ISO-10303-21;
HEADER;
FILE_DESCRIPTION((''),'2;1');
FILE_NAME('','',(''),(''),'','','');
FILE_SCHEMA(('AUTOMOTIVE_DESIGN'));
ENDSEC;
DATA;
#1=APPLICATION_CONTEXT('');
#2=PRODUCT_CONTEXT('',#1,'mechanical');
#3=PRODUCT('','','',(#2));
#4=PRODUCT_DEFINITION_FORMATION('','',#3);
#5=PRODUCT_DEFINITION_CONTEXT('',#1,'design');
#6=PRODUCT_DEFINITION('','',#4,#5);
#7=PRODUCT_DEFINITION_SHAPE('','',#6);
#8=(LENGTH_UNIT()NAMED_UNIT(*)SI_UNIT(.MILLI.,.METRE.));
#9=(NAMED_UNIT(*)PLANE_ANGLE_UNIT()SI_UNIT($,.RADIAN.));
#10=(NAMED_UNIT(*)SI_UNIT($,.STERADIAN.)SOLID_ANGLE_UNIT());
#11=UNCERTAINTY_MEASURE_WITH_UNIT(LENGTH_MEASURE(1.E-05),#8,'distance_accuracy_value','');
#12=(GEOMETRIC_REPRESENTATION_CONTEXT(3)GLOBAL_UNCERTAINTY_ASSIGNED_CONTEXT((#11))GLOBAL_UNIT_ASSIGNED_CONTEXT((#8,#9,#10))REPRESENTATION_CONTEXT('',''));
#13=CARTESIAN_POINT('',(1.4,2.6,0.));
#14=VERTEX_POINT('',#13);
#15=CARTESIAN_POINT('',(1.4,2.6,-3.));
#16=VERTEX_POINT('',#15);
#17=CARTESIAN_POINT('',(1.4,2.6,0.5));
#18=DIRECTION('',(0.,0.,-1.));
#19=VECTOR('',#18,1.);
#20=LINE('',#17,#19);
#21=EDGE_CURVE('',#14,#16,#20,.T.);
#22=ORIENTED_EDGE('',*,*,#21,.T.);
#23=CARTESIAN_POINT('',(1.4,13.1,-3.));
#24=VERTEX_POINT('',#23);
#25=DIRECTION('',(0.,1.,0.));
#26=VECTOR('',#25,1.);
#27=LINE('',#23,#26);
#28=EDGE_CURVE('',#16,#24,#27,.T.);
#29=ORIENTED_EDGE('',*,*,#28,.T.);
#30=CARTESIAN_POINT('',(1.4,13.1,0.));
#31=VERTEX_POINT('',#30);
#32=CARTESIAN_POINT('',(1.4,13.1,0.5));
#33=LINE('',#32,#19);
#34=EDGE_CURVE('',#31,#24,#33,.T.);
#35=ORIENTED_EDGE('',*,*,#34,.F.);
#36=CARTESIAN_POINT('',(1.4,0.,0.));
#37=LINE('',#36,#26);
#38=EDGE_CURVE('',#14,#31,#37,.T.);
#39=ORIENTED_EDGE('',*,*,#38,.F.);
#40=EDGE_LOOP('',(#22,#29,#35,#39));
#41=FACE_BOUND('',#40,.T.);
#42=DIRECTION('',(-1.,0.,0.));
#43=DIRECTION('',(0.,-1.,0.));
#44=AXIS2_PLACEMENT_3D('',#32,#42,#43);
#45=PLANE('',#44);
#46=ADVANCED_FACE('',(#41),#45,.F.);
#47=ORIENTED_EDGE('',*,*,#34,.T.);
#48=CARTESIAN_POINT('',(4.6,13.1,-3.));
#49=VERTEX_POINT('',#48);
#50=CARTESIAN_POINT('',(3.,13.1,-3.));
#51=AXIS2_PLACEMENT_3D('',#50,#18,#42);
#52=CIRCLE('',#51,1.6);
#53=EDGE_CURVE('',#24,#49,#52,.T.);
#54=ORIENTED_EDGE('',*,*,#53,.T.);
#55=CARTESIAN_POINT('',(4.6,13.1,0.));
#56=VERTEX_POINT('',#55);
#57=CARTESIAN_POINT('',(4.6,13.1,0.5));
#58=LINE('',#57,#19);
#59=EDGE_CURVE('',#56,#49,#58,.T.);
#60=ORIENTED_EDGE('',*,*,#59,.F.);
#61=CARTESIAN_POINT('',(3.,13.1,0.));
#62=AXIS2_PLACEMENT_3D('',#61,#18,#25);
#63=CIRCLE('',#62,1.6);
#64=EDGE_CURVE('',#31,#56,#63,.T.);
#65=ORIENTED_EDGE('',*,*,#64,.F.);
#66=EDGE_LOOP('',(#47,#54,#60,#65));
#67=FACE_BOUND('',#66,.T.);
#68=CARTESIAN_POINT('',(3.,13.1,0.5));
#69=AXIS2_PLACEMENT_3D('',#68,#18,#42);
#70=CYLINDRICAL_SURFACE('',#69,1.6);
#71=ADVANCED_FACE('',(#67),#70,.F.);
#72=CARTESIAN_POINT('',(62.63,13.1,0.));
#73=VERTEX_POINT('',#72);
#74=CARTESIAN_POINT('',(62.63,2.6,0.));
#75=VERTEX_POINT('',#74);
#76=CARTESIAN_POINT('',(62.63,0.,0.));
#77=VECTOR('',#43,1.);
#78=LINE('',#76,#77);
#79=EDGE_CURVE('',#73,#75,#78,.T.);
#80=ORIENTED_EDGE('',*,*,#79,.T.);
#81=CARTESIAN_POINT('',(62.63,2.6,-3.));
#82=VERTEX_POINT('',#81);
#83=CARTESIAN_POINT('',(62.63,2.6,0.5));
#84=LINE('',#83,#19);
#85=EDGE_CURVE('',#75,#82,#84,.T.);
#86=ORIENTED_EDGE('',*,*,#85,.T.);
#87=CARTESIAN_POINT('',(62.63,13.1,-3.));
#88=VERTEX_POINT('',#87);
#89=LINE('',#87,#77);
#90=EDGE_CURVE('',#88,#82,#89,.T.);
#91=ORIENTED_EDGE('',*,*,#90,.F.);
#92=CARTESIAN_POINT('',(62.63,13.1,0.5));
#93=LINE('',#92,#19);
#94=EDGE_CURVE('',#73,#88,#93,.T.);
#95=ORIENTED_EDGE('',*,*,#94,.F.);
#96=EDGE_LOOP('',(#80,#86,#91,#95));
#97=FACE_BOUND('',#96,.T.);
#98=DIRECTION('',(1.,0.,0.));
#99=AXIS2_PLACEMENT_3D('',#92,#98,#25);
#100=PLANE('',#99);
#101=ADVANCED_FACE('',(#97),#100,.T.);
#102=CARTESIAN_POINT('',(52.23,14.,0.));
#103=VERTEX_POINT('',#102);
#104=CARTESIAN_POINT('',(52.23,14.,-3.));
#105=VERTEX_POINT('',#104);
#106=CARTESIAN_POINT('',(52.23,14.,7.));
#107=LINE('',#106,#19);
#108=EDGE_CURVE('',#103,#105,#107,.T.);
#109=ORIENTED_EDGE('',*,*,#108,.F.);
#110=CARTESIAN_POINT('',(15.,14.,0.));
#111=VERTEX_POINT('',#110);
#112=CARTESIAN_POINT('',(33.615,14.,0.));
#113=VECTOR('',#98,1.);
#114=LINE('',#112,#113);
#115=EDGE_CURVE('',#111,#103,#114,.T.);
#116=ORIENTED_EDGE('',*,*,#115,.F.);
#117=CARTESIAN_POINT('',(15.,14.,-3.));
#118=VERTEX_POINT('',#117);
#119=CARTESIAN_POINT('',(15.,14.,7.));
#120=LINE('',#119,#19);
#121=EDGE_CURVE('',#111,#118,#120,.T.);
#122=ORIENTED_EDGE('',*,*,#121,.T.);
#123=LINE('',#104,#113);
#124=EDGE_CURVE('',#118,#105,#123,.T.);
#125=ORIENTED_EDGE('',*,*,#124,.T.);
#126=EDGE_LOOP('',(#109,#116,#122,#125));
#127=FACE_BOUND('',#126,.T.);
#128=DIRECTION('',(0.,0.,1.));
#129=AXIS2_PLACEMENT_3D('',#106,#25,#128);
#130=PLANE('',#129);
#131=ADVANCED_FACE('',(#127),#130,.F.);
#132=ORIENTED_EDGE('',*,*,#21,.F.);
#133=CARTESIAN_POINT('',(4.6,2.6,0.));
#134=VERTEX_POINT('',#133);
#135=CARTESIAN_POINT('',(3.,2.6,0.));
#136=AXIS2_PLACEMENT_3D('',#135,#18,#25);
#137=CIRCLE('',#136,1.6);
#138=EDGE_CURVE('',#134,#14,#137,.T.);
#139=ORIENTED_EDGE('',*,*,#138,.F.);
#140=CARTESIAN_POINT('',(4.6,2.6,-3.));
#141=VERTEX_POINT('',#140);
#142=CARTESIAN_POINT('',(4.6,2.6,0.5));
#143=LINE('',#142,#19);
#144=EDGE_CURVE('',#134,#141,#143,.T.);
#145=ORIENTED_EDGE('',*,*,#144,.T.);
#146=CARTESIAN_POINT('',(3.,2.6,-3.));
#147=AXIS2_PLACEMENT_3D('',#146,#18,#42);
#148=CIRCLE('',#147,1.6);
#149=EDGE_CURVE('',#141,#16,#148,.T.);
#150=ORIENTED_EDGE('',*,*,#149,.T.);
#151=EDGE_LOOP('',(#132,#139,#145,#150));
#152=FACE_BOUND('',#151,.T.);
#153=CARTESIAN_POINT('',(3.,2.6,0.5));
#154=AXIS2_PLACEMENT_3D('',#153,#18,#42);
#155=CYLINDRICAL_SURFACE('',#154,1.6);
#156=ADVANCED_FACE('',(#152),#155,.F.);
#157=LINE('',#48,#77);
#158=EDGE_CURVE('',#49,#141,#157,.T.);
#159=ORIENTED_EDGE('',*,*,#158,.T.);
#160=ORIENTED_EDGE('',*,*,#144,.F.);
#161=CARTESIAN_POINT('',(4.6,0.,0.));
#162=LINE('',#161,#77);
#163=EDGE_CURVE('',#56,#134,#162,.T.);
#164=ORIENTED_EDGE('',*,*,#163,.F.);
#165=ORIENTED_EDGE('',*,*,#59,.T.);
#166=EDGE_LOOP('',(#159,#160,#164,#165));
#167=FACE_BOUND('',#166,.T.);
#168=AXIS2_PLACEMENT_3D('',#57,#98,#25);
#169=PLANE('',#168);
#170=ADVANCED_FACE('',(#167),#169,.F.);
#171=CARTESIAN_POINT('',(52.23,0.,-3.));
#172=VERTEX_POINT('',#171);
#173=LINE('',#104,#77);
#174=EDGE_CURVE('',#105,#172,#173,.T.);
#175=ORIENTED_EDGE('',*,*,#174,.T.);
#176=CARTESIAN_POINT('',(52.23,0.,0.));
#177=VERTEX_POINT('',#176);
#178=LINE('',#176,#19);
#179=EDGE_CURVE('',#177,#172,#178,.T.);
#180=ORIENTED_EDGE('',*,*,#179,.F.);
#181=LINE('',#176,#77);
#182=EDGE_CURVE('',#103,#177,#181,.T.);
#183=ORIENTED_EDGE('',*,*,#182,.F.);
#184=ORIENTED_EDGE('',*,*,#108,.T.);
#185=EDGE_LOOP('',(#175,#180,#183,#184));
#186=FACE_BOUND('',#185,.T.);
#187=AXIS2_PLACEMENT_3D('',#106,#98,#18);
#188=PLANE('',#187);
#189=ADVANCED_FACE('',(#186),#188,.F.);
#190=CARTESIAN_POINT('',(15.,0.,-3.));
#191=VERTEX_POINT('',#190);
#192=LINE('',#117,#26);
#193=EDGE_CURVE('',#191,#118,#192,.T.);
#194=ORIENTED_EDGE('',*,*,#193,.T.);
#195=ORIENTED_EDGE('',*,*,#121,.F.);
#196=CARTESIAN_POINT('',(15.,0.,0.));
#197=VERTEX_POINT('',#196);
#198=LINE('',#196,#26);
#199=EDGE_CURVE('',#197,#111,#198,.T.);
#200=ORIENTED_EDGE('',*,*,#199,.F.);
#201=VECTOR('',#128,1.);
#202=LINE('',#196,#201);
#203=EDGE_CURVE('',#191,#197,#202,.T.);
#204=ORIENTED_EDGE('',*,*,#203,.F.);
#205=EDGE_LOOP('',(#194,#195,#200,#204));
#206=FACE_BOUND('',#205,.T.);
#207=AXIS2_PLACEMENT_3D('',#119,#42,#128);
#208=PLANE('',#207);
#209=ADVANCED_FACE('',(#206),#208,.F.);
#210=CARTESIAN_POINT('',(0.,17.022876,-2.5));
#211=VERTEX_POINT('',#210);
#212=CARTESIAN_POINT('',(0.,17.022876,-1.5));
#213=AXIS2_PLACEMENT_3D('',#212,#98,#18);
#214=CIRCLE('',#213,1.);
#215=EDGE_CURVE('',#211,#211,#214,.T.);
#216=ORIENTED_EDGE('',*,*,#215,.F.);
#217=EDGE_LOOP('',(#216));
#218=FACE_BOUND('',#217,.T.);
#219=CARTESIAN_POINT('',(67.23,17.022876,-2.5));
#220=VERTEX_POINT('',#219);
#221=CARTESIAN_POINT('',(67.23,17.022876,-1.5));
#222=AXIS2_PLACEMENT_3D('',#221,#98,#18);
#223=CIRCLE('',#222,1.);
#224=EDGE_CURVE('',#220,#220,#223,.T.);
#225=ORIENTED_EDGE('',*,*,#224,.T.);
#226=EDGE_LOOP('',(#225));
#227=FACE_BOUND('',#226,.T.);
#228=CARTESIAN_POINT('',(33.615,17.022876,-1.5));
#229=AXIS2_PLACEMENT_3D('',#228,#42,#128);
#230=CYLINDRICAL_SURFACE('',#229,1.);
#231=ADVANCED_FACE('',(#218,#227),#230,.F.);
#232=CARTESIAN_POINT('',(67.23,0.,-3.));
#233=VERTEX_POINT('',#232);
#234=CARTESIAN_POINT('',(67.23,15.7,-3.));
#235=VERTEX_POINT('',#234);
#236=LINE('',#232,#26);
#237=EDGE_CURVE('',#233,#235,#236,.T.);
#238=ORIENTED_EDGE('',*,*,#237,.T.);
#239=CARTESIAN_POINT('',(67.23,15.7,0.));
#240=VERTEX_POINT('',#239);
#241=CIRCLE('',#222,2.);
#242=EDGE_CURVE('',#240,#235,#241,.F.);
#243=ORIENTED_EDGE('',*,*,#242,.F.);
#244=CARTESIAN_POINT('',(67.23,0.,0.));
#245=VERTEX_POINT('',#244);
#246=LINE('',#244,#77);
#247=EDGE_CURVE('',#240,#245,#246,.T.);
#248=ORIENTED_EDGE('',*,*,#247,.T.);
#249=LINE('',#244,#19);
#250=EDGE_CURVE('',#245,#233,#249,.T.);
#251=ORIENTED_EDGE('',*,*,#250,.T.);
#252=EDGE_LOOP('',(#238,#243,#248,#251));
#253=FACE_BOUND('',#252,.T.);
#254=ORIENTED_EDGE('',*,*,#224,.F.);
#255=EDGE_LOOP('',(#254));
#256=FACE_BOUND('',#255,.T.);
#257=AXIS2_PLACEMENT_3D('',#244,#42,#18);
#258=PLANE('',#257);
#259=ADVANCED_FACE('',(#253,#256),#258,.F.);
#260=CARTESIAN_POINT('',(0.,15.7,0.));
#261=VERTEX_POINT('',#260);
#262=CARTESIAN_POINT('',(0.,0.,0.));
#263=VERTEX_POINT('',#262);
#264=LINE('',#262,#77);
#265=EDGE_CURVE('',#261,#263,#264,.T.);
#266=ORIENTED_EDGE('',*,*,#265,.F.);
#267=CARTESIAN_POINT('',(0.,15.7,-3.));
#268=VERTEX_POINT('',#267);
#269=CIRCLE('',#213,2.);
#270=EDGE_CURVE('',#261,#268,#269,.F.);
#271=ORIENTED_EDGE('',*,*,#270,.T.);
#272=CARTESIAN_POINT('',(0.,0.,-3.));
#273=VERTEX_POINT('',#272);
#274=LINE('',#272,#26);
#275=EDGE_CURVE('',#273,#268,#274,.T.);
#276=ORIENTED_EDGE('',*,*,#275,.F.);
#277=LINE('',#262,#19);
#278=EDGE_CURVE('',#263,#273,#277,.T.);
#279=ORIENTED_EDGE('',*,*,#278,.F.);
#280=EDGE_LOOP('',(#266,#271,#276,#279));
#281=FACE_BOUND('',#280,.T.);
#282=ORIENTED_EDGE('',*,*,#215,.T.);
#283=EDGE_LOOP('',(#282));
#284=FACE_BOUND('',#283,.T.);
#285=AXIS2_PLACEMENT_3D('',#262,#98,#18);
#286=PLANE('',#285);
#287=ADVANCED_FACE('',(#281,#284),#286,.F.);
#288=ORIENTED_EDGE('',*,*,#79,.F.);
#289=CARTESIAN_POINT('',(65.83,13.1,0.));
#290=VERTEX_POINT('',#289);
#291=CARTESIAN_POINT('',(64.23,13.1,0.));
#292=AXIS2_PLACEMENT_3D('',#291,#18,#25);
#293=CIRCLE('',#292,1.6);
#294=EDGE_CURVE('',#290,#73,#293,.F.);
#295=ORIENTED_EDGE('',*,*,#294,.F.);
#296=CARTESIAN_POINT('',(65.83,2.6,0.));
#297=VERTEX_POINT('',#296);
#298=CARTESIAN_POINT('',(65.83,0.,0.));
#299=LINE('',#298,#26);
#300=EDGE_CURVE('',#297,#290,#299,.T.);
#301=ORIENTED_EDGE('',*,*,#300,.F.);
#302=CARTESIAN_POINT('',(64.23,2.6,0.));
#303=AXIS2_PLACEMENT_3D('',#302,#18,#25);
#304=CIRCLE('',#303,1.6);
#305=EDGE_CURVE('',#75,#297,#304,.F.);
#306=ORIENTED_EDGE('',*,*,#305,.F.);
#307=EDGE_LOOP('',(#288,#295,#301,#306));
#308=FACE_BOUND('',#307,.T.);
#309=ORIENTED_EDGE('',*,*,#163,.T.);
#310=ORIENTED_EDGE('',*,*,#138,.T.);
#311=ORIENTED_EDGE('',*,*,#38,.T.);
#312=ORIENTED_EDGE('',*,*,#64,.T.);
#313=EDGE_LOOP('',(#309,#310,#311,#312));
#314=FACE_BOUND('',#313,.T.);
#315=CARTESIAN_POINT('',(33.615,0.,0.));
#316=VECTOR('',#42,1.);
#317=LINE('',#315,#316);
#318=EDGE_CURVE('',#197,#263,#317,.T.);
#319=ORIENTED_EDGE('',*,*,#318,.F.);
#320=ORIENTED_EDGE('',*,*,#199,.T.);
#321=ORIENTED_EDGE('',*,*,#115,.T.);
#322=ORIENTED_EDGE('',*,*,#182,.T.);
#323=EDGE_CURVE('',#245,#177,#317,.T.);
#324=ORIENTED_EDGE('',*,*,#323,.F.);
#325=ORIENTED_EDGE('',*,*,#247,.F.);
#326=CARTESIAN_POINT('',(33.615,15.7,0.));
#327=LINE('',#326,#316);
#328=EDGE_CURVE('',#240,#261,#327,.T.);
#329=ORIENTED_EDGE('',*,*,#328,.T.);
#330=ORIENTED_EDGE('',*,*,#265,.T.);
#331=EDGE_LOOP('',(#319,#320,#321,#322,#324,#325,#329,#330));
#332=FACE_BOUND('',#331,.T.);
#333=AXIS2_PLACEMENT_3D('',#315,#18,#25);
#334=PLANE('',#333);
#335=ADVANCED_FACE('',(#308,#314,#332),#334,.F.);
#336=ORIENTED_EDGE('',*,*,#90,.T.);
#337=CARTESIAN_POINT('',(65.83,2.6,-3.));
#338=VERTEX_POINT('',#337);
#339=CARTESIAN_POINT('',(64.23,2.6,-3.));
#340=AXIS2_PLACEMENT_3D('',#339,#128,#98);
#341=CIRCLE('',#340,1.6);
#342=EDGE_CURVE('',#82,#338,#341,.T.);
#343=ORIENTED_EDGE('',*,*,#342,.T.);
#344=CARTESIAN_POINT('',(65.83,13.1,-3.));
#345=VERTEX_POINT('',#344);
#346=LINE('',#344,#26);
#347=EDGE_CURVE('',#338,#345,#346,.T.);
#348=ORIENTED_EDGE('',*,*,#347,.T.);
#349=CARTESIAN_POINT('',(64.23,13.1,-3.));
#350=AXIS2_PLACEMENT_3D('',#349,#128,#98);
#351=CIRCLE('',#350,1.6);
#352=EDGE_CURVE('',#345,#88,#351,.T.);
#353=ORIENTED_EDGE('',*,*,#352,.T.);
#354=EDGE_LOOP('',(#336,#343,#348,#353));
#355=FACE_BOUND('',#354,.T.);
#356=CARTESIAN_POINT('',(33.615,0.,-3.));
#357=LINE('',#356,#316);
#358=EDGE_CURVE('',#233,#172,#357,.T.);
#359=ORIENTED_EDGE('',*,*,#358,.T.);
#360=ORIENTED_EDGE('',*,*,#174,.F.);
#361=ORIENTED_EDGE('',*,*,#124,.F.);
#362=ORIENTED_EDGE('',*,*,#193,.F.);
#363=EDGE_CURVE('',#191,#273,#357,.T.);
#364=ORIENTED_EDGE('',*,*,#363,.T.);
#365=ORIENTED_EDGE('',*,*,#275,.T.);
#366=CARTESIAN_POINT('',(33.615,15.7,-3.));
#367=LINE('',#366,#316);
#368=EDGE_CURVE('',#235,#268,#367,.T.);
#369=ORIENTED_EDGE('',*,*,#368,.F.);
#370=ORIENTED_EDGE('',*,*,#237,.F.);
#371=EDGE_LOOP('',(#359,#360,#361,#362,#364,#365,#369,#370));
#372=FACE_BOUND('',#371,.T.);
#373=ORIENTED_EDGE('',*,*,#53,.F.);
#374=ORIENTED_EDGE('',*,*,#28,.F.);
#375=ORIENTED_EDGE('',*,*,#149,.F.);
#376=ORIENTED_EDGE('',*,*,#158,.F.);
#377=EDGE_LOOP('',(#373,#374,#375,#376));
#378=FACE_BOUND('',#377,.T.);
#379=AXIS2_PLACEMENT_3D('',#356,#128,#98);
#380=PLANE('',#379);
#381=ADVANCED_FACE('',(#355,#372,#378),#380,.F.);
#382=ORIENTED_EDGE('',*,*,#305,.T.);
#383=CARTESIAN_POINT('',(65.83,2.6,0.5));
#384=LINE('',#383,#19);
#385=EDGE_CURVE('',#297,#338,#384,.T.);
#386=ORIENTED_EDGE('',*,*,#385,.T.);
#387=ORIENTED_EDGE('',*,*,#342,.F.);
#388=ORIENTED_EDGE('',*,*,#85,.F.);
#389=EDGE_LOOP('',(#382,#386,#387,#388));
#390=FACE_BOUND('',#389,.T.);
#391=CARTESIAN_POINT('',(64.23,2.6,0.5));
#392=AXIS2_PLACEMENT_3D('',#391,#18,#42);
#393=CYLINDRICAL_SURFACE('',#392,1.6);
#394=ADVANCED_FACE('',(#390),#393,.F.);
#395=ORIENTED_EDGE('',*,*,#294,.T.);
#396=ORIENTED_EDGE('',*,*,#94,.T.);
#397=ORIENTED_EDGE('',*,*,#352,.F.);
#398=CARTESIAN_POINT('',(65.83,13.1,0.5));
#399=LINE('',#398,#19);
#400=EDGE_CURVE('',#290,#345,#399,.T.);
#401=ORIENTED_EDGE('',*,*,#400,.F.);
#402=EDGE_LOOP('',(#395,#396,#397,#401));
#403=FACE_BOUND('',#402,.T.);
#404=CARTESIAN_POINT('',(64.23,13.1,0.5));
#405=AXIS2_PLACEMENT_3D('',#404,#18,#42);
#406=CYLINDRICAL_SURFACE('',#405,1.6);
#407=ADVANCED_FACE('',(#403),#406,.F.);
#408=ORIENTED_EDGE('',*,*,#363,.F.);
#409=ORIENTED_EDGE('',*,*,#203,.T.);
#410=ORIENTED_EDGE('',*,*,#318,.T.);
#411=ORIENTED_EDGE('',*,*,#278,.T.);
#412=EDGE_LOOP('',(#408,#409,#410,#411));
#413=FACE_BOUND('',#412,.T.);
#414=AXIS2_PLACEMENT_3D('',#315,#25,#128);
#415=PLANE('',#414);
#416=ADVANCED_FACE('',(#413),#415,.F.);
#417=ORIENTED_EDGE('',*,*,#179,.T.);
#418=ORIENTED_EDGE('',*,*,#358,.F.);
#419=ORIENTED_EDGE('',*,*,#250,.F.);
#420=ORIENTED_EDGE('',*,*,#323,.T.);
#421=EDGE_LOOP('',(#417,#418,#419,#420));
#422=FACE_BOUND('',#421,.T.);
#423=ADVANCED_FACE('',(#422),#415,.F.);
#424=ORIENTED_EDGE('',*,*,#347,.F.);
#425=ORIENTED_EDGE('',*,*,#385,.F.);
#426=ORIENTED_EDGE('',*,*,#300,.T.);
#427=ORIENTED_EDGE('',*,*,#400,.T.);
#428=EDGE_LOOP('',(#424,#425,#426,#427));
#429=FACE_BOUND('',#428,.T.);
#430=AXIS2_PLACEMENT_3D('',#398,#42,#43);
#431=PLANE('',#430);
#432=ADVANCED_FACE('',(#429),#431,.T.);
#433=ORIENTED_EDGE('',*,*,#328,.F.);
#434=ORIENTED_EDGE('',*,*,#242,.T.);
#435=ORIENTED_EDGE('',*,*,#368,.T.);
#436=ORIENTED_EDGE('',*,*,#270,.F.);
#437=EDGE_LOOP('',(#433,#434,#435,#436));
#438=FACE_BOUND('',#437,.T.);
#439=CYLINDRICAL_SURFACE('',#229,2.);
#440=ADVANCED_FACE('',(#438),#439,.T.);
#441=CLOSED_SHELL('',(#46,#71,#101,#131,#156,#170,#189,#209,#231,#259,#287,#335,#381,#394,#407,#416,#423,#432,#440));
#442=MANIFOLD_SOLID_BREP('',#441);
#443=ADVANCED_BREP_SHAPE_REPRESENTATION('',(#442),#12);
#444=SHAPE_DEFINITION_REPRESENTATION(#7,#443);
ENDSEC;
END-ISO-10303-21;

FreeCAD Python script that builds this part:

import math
import FreeCAD as App
import Part
import Sketcher

V = App.Vector
Q = App.Units.Quantity


def add_polygon(sketch, points):
    """Adds a closed chain of lines whose ends are joined by coincident constraints."""
    first, n = sketch.GeometryCount, len(points)
    for a, b in zip(points, points[1:] + points[:1]):
        sketch.addGeometry(Part.LineSegment(App.Vector(*a, 0), App.Vector(*b, 0)), False)
    for i in range(n):
        sketch.addConstraint(Sketcher.Constraint("Coincident", first + i, 2, first + (i + 1) % n, 1))

doc = App.newDocument("Part")
body = doc.addObject("PartDesign::Body", "Body")

sketch1 = doc.addObject("Sketcher::SketchObject", "Sketch")
body.addObject(sketch1)
sketch1.AttachmentSupport = (doc.YZ_Plane, [""])
sketch1.MapMode = "FlatFace"
sketch1.addGeometry(Part.ArcOfCircle(Part.Circle(V(17.022876, -1.5, 0), V(0, 0, 1), 2), math.radians(-131.409622), math.radians(131.409622)), False)
sketch1.addGeometry(Part.LineSegment(V(15.7, 0, 0), V(0, 0, 0)), False)
sketch1.addGeometry(Part.LineSegment(V(0, 0, 0), V(0, -3, 0)), False)
sketch1.addGeometry(Part.LineSegment(V(0, -3, 0), V(15.7, -3, 0)), False)
sketch1.addGeometry(Part.Circle(V(17.022876, -1.5, 0), V(0, 0, 1), 1), False)
sketch1.addConstraint(Sketcher.Constraint("Coincident", 0, 2, 1, 1))
sketch1.addConstraint(Sketcher.Constraint("Coincident", 1, 2, 2, 1))
sketch1.addConstraint(Sketcher.Constraint("Coincident", 2, 2, 3, 1))
sketch1.addConstraint(Sketcher.Constraint("Coincident", 3, 2, 0, 1))
sketch1.addConstraint(Sketcher.Constraint("Horizontal", 1))
sketch1.addConstraint(Sketcher.Constraint("Vertical", 2))
sketch1.addConstraint(Sketcher.Constraint("Horizontal", 3))
sketch1.addConstraint(Sketcher.Constraint("Coincident", 1, 2, -1, 1))
sketch1.addConstraint(Sketcher.Constraint("Coincident", 4, 3, 0, 3))
sketch1.addConstraint(Sketcher.Constraint("Vertical", 0, 2, 3, 2))
sketch1.addConstraint(Sketcher.Constraint("Diameter", 4, Q("2 mm")))
sketch1.addConstraint(Sketcher.Constraint("Radius", 0, Q("2 mm")))
sketch1.addConstraint(Sketcher.Constraint("DistanceY", 2, 2, 2, 1, Q("3 mm")))
sketch1.addConstraint(Sketcher.Constraint("DistanceX", 1, 2, 1, 1, Q("15.7 mm")))
pad1 = doc.addObject("PartDesign::Pad", "Pad")
body.addObject(pad1)
pad1.Profile = sketch1
pad1.Length = 33.615

sketch2 = doc.addObject("Sketcher::SketchObject", "Sketch001")
body.addObject(sketch2)
sketch2.AttachmentSupport = (doc.XY_Plane, [""])
sketch2.MapMode = "FlatFace"
sketch2.AttachmentOffset = App.Placement(V(0, 0, -3), App.Rotation())
sketch2.addGeometry(Part.LineSegment(V(1.4, 2.6, 0), V(1.4, 13.1, 0)), False)
sketch2.addGeometry(Part.ArcOfCircle(Part.Circle(V(3, 13.1, 0), V(0, 0, 1), 1.6), math.radians(0), math.radians(180)), False)
sketch2.addGeometry(Part.LineSegment(V(4.6, 13.1, 0), V(4.6, 2.6, 0)), False)
sketch2.addGeometry(Part.ArcOfCircle(Part.Circle(V(3, 2.6, 0), V(0, 0, 1), 1.6), math.radians(180), math.radians(360)), False)
sketch2.addConstraint(Sketcher.Constraint("Tangent", 0, 2, 1, 2))
sketch2.addConstraint(Sketcher.Constraint("Tangent", 1, 1, 2, 1))
sketch2.addConstraint(Sketcher.Constraint("Tangent", 2, 2, 3, 2))
sketch2.addConstraint(Sketcher.Constraint("Tangent", 3, 1, 0, 1))
sketch2.addConstraint(Sketcher.Constraint("Vertical", 0))
sketch2.addConstraint(Sketcher.Constraint("Vertical", 2))
sketch2.addConstraint(Sketcher.Constraint("Radius", 1, Q("1.6 mm")))
sketch2.addConstraint(Sketcher.Constraint("DistanceY", 0, 1, 0, 2, Q("10.5 mm")))
sketch2.addConstraint(Sketcher.Constraint("DistanceX", -1, 1, 1, 3, Q("3 mm")))
sketch2.addConstraint(Sketcher.Constraint("DistanceY", -1, 1, 1, 3, Q("13.1 mm")))
pocket1 = doc.addObject("PartDesign::Pocket", "Pocket")
body.addObject(pocket1)
pocket1.Profile = sketch2
pocket1.Type = "ThroughAll"
pocket1.Reversed = True
doc.recompute()

datumplane = doc.addObject("PartDesign::Plane", "DatumPlane")
body.addObject(datumplane)
datumplane.AttachmentSupport = (doc.YZ_Plane, [""])
datumplane.MapMode = "FlatFace"
datumplane.AttachmentOffset = App.Placement(V(0, 0, 33.615), App.Rotation())
mirrored = doc.addObject("PartDesign::Mirrored", "Mirrored")
body.addObject(mirrored)
mirrored.Originals = [pad1, pocket1]
mirrored.MirrorPlane = (datumplane, [""])
body.Tip = mirrored

sketch3 = doc.addObject("Sketcher::SketchObject", "Sketch002")
body.addObject(sketch3)
sketch3.AttachmentSupport = (doc.XY_Plane, [""])
sketch3.MapMode = "FlatFace"
sketch3.AttachmentOffset = App.Placement(V(0, 0, -3), App.Rotation())
add_polygon(sketch3, [(52.23, 14), (52.23, 0), (15, 0), (15, 14)])
sketch3.addConstraint(Sketcher.Constraint("Vertical", 0))
sketch3.addConstraint(Sketcher.Constraint("Horizontal", 1))
sketch3.addConstraint(Sketcher.Constraint("Vertical", 2))
sketch3.addConstraint(Sketcher.Constraint("Horizontal", 3))
sketch3.addConstraint(Sketcher.Constraint("PointOnObject", 0, 2, -1))
sketch3.addConstraint(Sketcher.Constraint("DistanceY", 0, 2, 0, 1, Q("14 mm")))
sketch3.addConstraint(Sketcher.Constraint("DistanceX", -1, 1, 1, 2, Q("15 mm")))
sketch3.addConstraint(Sketcher.Constraint("DistanceX", 1, 2, 1, 1, Q("37.23 mm")))
pocket2 = doc.addObject("PartDesign::Pocket", "Pocket001")
body.addObject(pocket2)
pocket2.Profile = sketch3
pocket2.Length = 10
pocket2.Reversed = True

doc.recompute()
